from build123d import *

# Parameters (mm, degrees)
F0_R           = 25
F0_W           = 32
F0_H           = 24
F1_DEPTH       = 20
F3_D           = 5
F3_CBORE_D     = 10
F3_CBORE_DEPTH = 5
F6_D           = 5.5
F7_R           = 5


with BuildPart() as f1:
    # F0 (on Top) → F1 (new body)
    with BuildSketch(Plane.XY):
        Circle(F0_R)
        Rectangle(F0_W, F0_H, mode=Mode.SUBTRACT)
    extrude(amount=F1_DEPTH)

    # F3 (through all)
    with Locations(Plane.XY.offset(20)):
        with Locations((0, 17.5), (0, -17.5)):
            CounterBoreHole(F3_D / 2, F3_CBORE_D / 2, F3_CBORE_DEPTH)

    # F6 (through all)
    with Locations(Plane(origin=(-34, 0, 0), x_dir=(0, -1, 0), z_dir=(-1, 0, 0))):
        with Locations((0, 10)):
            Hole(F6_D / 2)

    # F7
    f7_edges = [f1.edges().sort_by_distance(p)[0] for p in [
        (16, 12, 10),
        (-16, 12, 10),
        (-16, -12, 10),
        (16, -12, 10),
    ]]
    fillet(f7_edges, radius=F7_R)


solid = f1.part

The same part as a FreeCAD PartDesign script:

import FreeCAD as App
import Part
import Sketcher
from FreeCAD import Vector
Q = App.Units.Quantity


def edges_at(feature, points):
    """Names of the edges that pass closest to the given points."""
    edges = feature.Shape.Edges
    near = lambda p: min(range(len(edges)), key=lambda i: edges[i].distToShape(Part.Vertex(*p))[0])
    return sorted({f"Edge{near(p) + 1}" for p in points})


def add_polygon(sketch, points):
    """Adds a closed chain of lines whose ends are joined by coincident constraints."""
    first, n = sketch.GeometryCount, len(points)
    for a, b in zip(points, points[1:] + points[:1]):
        sketch.addGeometry(Part.LineSegment(App.Vector(*a, 0), App.Vector(*b, 0)), False)
    for i in range(n):
        sketch.addConstraint(Sketcher.Constraint("Coincident", first + i, 2, first + (i + 1) % n, 1))

doc = App.newDocument("Part")
body = doc.addObject("PartDesign::Body", "Body")

# Sketch on XY plane
sketch1 = body.newObject("Sketcher::SketchObject", "Sketch")
sketch1.AttachmentSupport = (doc.getObject("XY_Plane"), [""])
sketch1.MapMode = "FlatFace"
sketch1.addGeometry(Part.Circle(Vector(0, 0, 0), Vector(0, 0, 1), 25), False)  # 0
add_polygon(sketch1, [(16, -12), (-16, -12), (-16, 12), (16, 12)])  # lines 1-4
sketch1.addConstraint([
    Sketcher.Constraint("Horizontal", 1),
    Sketcher.Constraint("Vertical", 2),
    Sketcher.Constraint("Horizontal", 3),
    Sketcher.Constraint("Vertical", 4),
    Sketcher.Constraint("Coincident", 0, 3, -1, 1),
    Sketcher.Constraint("Symmetric", 1, 2, 3, 2, -1, 1),
    Sketcher.Constraint("Diameter", 0, Q("50 mm")),
    Sketcher.Constraint("DistanceX", 1, 2, 1, 1, Q("32 mm")),
    Sketcher.Constraint("DistanceY", 2, 1, 2, 2, Q("24 mm")),
])
pad1 = body.newObject("PartDesign::Pad", "Pad")
pad1.Profile = sketch1
pad1.Length = 20

# Sketch on XY plane
sketch2 = body.newObject("Sketcher::SketchObject", "Sketch001")
sketch2.AttachmentSupport = (doc.getObject("XY_Plane"), [""])
sketch2.MapMode = "FlatFace"
sketch2.AttachmentOffset = App.Placement(Vector(0, 0, 20), App.Rotation())
sketch2.addGeometry([
    Part.Circle(Vector(0, 17.5, 0), Vector(0, 0, 1), 2.5),
    Part.Circle(Vector(0, -17.5, 0), Vector(0, 0, 1), 2.5),
], False)
sketch2.addConstraint([
    Sketcher.Constraint("Equal", 0, 1),
    Sketcher.Constraint("Symmetric", 0, 3, 1, 3, -1, 1),
    Sketcher.Constraint("PointOnObject", 0, 3, -2),
    Sketcher.Constraint("Diameter", 0, Q("5 mm")),
    Sketcher.Constraint("DistanceY", 1, 3, 0, 3, Q("35 mm")),
])
doc.recompute()
hole = body.newObject("PartDesign::Hole", "Hole")
hole.Profile = sketch2
hole.ThreadType = "None"
hole.Diameter = 5
hole.DepthType = "ThroughAll"
hole.HoleCutType = "Counterbore"
hole.HoleCutDiameter = 10
hole.HoleCutDepth = 5

# Sketch on YZ plane
sketch3 = body.newObject("Sketcher::SketchObject", "Sketch002")
sketch3.AttachmentSupport = (doc.getObject("YZ_Plane"), [""])
sketch3.MapMode = "FlatFace"
sketch3.AttachmentOffset = App.Placement(Vector(0, 0, -34), App.Rotation())
sketch3.addGeometry(Part.Circle(Vector(0, 10, 0), Vector(0, 0, 1), 2.8), False)
sketch3.addConstraint([
    Sketcher.Constraint("PointOnObject", 0, 3, -2),
    Sketcher.Constraint("Diameter", 0, Q("5.5 mm")),
    Sketcher.Constraint("DistanceY", -1, 1, 0, 3, Q("10 mm")),
])
doc.recompute()
hole2 = body.newObject("PartDesign::Hole", "Hole001")
hole2.Profile = sketch3
hole2.ThreadType = "None"
hole2.Diameter = 5.5
hole2.DepthType = "ThroughAll"
hole2.Reversed = True
doc.recompute()

fillet = body.newObject("PartDesign::Fillet", "Fillet")
fillet.Base = (hole2, edges_at(hole2, [
    (16, 12, 10),
    (-16, 12, 10),
    (-16, -12, 10),
    (16, -12, 10),
]))
fillet.Radius = 5

doc.recompute()
